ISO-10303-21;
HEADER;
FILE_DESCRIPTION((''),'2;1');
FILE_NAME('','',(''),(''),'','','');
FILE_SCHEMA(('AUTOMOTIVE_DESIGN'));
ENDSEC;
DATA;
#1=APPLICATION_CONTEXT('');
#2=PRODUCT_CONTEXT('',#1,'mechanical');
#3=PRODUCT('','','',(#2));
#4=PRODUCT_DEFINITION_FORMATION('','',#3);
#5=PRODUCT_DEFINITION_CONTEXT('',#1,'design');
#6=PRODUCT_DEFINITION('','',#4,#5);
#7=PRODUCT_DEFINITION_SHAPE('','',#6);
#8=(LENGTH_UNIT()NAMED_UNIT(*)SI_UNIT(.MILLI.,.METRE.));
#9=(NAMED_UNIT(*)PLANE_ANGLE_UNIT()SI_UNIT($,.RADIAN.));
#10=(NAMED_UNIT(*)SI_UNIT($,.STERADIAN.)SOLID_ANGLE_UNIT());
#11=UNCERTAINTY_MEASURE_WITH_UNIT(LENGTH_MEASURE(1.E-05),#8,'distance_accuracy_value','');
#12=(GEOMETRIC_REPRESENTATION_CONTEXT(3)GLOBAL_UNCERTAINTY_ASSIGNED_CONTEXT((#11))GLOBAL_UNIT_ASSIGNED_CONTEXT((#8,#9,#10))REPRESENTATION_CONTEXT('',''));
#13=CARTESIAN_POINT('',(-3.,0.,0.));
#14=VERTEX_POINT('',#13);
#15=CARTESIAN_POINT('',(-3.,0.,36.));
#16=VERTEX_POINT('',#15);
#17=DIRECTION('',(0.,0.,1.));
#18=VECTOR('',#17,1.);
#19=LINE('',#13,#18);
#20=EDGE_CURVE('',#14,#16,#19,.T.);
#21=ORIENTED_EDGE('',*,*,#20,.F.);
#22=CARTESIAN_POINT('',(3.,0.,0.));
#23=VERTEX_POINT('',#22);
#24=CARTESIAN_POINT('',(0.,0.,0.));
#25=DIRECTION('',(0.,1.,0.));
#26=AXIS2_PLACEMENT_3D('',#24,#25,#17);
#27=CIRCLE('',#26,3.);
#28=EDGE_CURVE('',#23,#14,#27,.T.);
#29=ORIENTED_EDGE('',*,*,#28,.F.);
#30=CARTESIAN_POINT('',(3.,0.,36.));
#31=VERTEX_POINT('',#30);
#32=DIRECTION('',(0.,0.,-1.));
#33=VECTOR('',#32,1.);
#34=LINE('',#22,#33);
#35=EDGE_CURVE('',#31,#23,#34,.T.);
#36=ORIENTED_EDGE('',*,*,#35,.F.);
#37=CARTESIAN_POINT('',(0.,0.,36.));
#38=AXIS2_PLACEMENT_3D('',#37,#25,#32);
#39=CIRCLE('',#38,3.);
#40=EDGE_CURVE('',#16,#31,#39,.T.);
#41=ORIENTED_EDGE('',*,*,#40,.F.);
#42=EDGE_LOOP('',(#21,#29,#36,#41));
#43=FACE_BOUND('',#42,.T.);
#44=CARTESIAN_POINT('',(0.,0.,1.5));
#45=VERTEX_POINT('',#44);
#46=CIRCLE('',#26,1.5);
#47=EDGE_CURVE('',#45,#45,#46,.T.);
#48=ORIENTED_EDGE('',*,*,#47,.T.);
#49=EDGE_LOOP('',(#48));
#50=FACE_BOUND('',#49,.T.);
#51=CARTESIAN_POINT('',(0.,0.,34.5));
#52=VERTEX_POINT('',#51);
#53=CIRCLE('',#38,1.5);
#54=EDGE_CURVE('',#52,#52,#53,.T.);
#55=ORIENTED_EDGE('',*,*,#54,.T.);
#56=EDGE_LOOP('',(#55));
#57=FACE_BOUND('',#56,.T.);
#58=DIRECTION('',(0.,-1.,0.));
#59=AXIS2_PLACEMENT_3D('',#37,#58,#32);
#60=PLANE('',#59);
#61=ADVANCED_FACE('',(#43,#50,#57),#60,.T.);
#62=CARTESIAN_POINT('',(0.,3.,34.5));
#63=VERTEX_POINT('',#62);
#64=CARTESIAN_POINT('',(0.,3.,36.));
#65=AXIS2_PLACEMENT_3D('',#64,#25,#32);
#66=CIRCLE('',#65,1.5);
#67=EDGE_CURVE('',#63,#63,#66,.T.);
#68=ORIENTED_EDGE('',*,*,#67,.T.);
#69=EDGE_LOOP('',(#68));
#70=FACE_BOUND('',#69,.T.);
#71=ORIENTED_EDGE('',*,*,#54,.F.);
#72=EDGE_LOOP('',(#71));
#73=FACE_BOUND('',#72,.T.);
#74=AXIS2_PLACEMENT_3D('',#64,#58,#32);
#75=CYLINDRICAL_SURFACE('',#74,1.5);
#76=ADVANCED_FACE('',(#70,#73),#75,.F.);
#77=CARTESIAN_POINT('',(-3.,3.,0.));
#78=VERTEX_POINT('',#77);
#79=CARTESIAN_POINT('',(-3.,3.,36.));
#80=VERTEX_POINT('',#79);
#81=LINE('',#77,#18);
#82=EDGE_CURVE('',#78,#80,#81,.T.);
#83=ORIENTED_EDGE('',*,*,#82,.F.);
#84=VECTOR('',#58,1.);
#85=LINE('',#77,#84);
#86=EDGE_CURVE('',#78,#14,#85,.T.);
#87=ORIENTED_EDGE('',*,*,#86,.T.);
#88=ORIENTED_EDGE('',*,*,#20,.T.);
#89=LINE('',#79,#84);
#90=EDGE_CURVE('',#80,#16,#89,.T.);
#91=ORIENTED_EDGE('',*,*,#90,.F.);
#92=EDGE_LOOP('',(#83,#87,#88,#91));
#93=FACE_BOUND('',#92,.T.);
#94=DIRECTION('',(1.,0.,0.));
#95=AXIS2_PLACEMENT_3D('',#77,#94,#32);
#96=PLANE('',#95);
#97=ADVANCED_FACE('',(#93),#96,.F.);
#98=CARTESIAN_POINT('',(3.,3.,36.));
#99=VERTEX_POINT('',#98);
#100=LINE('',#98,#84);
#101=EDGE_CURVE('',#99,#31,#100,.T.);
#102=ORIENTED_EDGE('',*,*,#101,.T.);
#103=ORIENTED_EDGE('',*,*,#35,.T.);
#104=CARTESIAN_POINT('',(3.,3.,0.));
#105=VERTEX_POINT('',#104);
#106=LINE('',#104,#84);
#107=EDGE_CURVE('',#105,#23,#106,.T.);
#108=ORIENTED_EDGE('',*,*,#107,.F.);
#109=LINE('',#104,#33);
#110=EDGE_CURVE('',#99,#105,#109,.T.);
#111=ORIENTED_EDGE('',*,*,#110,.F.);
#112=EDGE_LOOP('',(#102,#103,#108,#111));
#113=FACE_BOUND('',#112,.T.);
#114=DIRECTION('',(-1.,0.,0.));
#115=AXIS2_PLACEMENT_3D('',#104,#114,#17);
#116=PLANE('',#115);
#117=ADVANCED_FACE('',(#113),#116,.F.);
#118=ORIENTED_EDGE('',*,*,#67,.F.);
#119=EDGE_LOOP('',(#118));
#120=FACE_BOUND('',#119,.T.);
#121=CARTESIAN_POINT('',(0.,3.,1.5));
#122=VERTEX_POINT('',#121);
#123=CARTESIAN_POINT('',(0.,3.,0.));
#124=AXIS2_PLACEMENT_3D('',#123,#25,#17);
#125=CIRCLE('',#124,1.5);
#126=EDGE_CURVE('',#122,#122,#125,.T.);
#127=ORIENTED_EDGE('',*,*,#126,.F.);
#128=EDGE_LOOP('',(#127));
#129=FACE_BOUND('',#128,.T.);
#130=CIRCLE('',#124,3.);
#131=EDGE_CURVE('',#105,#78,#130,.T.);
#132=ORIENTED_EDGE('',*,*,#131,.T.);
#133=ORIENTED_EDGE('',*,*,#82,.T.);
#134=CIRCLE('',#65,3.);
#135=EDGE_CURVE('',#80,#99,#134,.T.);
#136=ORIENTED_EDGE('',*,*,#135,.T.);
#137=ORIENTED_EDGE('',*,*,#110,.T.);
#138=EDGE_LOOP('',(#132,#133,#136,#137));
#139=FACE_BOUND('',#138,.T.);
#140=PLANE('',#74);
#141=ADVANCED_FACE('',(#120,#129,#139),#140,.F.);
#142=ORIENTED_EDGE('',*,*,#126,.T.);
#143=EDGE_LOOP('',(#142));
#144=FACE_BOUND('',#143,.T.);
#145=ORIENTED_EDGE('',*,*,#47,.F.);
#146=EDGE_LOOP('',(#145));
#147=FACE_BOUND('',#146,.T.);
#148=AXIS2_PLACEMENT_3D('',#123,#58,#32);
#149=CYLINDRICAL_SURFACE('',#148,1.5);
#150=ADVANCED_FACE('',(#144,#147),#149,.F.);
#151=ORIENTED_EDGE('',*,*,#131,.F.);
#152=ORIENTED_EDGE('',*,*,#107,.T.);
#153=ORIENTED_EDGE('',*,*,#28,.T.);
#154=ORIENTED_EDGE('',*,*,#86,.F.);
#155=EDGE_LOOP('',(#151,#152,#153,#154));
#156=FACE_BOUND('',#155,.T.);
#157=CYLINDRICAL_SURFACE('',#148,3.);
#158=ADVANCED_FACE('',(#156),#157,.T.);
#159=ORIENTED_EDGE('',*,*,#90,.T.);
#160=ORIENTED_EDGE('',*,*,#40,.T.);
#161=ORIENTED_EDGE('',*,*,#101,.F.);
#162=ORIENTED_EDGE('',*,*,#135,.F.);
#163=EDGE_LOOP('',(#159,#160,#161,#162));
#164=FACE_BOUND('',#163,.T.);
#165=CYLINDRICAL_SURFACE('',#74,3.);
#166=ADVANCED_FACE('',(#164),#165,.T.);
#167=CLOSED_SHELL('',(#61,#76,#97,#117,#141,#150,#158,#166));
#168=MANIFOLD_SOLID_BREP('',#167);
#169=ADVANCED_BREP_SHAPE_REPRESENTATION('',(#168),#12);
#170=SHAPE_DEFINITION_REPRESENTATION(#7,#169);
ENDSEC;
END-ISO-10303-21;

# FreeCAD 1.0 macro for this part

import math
import FreeCAD as App
import Part
import Sketcher

V = App.Vector

doc = App.newDocument("Part")
body = doc.addObject("PartDesign::Body", "Body")

sketch1 = body.newObject("Sketcher::SketchObject", "Sketch")
sketch1.AttachmentSupport = (doc.getObject("XZ_Plane"), [""])
sketch1.MapMode = "FlatFace"
sketch1.addGeometry([
    Part.LineSegment(V(-3, 0, 0), V(-3, 36, 0)),
    Part.ArcOfCircle(Part.Circle(V(0, 36, 0), V(0, 0, 1), 3), math.radians(0), math.radians(180)),
    Part.LineSegment(V(3, 36, 0), V(3, 0, 0)),
    Part.ArcOfCircle(Part.Circle(V(0, 0, 0), V(0, 0, 1), 3), math.radians(180), math.radians(360)),
    Part.Circle(V(0, 36, 0), V(0, 0, 1), 1.5),
    Part.Circle(V(0, 0, 0), V(0, 0, 1), 1.5),
], False)
sketch1.addConstraint([
    Sketcher.Constraint("Tangent", 0, 2, 1, 2),
    Sketcher.Constraint("Tangent", 1, 1, 2, 1),
    Sketcher.Constraint("Tangent", 2, 2, 3, 2),
    Sketcher.Constraint("Tangent", 3, 1, 0, 1),
    Sketcher.Constraint("Vertical", 0),
    Sketcher.Constraint("Vertical", 2),
    Sketcher.Constraint("Coincident", 3, 3, -1, 1),
    Sketcher.Constraint("Coincident", 5, 3, -1, 1),
    Sketcher.Constraint("Coincident", 4, 3, 1, 3),
    Sketcher.Constraint("Equal", 4, 5),
    Sketcher.Constraint("Diameter", 4, 3.0),
    Sketcher.Constraint("Radius", 1, 3.0),
    Sketcher.Constraint("DistanceY", 0, 1, 0, 2, 36.0),
])
pad1 = body.newObject("PartDesign::Pad", "Pad")
pad1.Profile = sketch1
pad1.Length = 3
pad1.Reversed = True

doc.recompute()
